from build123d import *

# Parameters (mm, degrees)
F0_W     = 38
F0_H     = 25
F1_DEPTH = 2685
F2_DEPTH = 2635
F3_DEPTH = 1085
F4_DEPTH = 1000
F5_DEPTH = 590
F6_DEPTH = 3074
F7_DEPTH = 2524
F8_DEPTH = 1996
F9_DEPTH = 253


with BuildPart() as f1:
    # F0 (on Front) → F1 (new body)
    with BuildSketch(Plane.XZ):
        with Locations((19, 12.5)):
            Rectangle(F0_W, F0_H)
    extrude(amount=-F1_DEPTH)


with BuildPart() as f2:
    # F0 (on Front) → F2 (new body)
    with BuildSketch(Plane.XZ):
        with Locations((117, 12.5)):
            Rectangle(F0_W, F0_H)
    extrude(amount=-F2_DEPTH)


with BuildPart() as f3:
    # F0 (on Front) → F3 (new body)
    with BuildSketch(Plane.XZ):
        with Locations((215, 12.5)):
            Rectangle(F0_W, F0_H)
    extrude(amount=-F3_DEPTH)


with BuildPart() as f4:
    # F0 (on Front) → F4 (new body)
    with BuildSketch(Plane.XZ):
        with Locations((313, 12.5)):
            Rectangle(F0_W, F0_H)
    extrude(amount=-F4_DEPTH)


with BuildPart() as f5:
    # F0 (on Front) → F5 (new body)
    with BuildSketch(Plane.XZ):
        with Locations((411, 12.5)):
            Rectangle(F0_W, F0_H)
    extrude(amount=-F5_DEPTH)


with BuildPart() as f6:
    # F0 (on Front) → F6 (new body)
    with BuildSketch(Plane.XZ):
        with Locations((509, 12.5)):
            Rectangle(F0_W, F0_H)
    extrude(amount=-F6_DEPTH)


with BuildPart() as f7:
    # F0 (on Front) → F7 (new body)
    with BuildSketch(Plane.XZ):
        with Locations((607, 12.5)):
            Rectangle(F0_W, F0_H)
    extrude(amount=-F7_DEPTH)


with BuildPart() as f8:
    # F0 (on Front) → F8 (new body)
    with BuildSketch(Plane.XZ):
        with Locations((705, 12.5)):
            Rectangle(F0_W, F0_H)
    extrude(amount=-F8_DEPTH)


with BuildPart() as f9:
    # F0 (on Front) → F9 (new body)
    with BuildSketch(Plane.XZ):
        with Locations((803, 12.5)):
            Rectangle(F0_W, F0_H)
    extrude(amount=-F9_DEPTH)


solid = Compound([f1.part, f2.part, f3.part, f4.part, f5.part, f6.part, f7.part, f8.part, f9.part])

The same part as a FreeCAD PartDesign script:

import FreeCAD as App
import Part
import Sketcher

V = App.Vector


def add_polygon(sketch, points):
    """Adds a closed chain of lines whose ends are joined by coincident constraints."""
    first, n = sketch.GeometryCount, len(points)
    for a, b in zip(points, points[1:] + points[:1]):
        sketch.addGeometry(Part.LineSegment(App.Vector(*a, 0), App.Vector(*b, 0)), False)
    for i in range(n):
        sketch.addConstraint(Sketcher.Constraint("Coincident", first + i, 2, first + (i + 1) % n, 1))

doc = App.newDocument("Part")
body = doc.addObject("PartDesign::Body", "Body")

sketch1 = body.newObject("Sketcher::SketchObject", "Sketch")
sketch1.AttachmentSupport = (doc.getObject("XZ_Plane"), [""])
sketch1.MapMode = "FlatFace"
add_polygon(sketch1, [(0, 25), (0, 0), (38, 0), (38, 25)])
sketch1.addConstraint([
    Sketcher.Constraint("Vertical", 0),
    Sketcher.Constraint("Horizontal", 1),
    Sketcher.Constraint("Vertical", 2),
    Sketcher.Constraint("Horizontal", 3),
    Sketcher.Constraint("Coincident", 0, 2, -1, 1),
    Sketcher.Constraint("DistanceX", 1, 1, 1, 2, 38.0),
    Sketcher.Constraint("DistanceY", 0, 2, 0, 1, 25.0),
])
pad1 = body.newObject("PartDesign::Pad", "Pad")
pad1.Profile = sketch1
pad1.Length = 2685
pad1.Reversed = True
body2 = doc.addObject("PartDesign::Body", "Body001")

sketch2 = body2.newObject("Sketcher::SketchObject", "Sketch001")
sketch2.AttachmentSupport = (doc.getObject("XZ_Plane001"), [""])
sketch2.MapMode = "FlatFace"
add_polygon(sketch2, [(98, 25), (98, 0), (136, 0), (136, 25)])
sketch2.addConstraint([
    Sketcher.Constraint("Vertical", 0),
    Sketcher.Constraint("Horizontal", 1),
    Sketcher.Constraint("Vertical", 2),
    Sketcher.Constraint("Horizontal", 3),
    Sketcher.Constraint("PointOnObject", 0, 2, -1),
    Sketcher.Constraint("DistanceX", 1, 1, 1, 2, 38.0),
    Sketcher.Constraint("DistanceY", 0, 2, 0, 1, 25.0),
    Sketcher.Constraint("DistanceX", -1, 1, 0, 2, 98.0),
])
pad2 = body2.newObject("PartDesign::Pad", "Pad001")
pad2.Profile = sketch2
pad2.Length = 2635
pad2.Reversed = True
body3 = doc.addObject("PartDesign::Body", "Body002")

sketch3 = body3.newObject("Sketcher::SketchObject", "Sketch002")
sketch3.AttachmentSupport = (doc.getObject("XZ_Plane002"), [""])
sketch3.MapMode = "FlatFace"
add_polygon(sketch3, [(196, 25), (196, 0), (234, 0), (234, 25)])
sketch3.addConstraint([
    Sketcher.Constraint("Vertical", 0),
    Sketcher.Constraint("Horizontal", 1),
    Sketcher.Constraint("Vertical", 2),
    Sketcher.Constraint("Horizontal", 3),
    Sketcher.Constraint("PointOnObject", 0, 2, -1),
    Sketcher.Constraint("DistanceX", 1, 1, 1, 2, 38.0),
    Sketcher.Constraint("DistanceY", 0, 2, 0, 1, 25.0),
    Sketcher.Constraint("DistanceX", -1, 1, 0, 2, 196.0),
])
pad3 = body3.newObject("PartDesign::Pad", "Pad002")
pad3.Profile = sketch3
pad3.Length = 1085
pad3.Reversed = True
body4 = doc.addObject("PartDesign::Body", "Body003")

sketch4 = body4.newObject("Sketcher::SketchObject", "Sketch003")
sketch4.AttachmentSupport = (doc.getObject("XZ_Plane003"), [""])
sketch4.MapMode = "FlatFace"
add_polygon(sketch4, [(294, 25), (294, 0), (332, 0), (332, 25)])
sketch4.addConstraint([
    Sketcher.Constraint("Vertical", 0),
    Sketcher.Constraint("Horizontal", 1),
    Sketcher.Constraint("Vertical", 2),
    Sketcher.Constraint("Horizontal", 3),
    Sketcher.Constraint("PointOnObject", 0, 2, -1),
    Sketcher.Constraint("DistanceX", 1, 1, 1, 2, 38.0),
    Sketcher.Constraint("DistanceY", 0, 2, 0, 1, 25.0),
    Sketcher.Constraint("DistanceX", -1, 1, 0, 2, 294.0),
])
pad4 = body4.newObject("PartDesign::Pad", "Pad003")
pad4.Profile = sketch4
pad4.Length = 1000
pad4.Reversed = True
body5 = doc.addObject("PartDesign::Body", "Body004")

sketch5 = body5.newObject("Sketcher::SketchObject", "Sketch004")
sketch5.AttachmentSupport = (doc.getObject("XZ_Plane004"), [""])
sketch5.MapMode = "FlatFace"
add_polygon(sketch5, [(392, 25), (392, 0), (430, 0), (430, 25)])
sketch5.addConstraint([
    Sketcher.Constraint("Vertical", 0),
    Sketcher.Constraint("Horizontal", 1),
    Sketcher.Constraint("Vertical", 2),
    Sketcher.Constraint("Horizontal", 3),
    Sketcher.Constraint("PointOnObject", 0, 2, -1),
    Sketcher.Constraint("DistanceX", 1, 1, 1, 2, 38.0),
    Sketcher.Constraint("DistanceY", 0, 2, 0, 1, 25.0),
    Sketcher.Constraint("DistanceX", -1, 1, 0, 2, 392.0),
])
pad5 = body5.newObject("PartDesign::Pad", "Pad004")
pad5.Profile = sketch5
pad5.Length = 590
pad5.Reversed = True
body6 = doc.addObject("PartDesign::Body", "Body005")

sketch6 = body6.newObject("Sketcher::SketchObject", "Sketch005")
sketch6.AttachmentSupport = (doc.getObject("XZ_Plane005"), [""])
sketch6.MapMode = "FlatFace"
add_polygon(sketch6, [(490, 25), (490, 0), (528, 0), (528, 25)])
sketch6.addConstraint([
    Sketcher.Constraint("Vertical", 0),
    Sketcher.Constraint("Horizontal", 1),
    Sketcher.Constraint("Vertical", 2),
    Sketcher.Constraint("Horizontal", 3),
    Sketcher.Constraint("PointOnObject", 0, 2, -1),
    Sketcher.Constraint("DistanceX", 1, 1, 1, 2, 38.0),
    Sketcher.Constraint("DistanceY", 0, 2, 0, 1, 25.0),
    Sketcher.Constraint("DistanceX", -1, 1, 0, 2, 490.0),
])
pad6 = body6.newObject("PartDesign::Pad", "Pad005")
pad6.Profile = sketch6
pad6.Length = 3074
pad6.Reversed = True
body7 = doc.addObject("PartDesign::Body", "Body006")

sketch7 = body7.newObject("Sketcher::SketchObject", "Sketch006")
sketch7.AttachmentSupport = (doc.getObject("XZ_Plane006"), [""])
sketch7.MapMode = "FlatFace"
add_polygon(sketch7, [(588, 25), (588, 0), (626, 0), (626, 25)])
sketch7.addConstraint([
    Sketcher.Constraint("Vertical", 0),
    Sketcher.Constraint("Horizontal", 1),
    Sketcher.Constraint("Vertical", 2),
    Sketcher.Constraint("Horizontal", 3),
    Sketcher.Constraint("PointOnObject", 0, 2, -1),
    Sketcher.Constraint("DistanceX", 1, 1, 1, 2, 38.0),
    Sketcher.Constraint("DistanceY", 0, 2, 0, 1, 25.0),
    Sketcher.Constraint("DistanceX", -1, 1, 0, 2, 588.0),
])
pad7 = body7.newObject("PartDesign::Pad", "Pad006")
pad7.Profile = sketch7
pad7.Length = 2524
pad7.Reversed = True
body8 = doc.addObject("PartDesign::Body", "Body007")

sketch8 = body8.newObject("Sketcher::SketchObject", "Sketch007")
sketch8.AttachmentSupport = (doc.getObject("XZ_Plane007"), [""])
sketch8.MapMode = "FlatFace"
add_polygon(sketch8, [(686, 25), (686, 0), (724, 0), (724, 25)])
sketch8.addConstraint([
    Sketcher.Constraint("Vertical", 0),
    Sketcher.Constraint("Horizontal", 1),
    Sketcher.Constraint("Vertical", 2),
    Sketcher.Constraint("Horizontal", 3),
    Sketcher.Constraint("PointOnObject", 0, 2, -1),
    Sketcher.Constraint("DistanceX", 1, 1, 1, 2, 38.0),
    Sketcher.Constraint("DistanceY", 0, 2, 0, 1, 25.0),
    Sketcher.Constraint("DistanceX", -1, 1, 0, 2, 686.0),
])
pad8 = body8.newObject("PartDesign::Pad", "Pad007")
pad8.Profile = sketch8
pad8.Length = 1996
pad8.Reversed = True
body9 = doc.addObject("PartDesign::Body", "Body008")

sketch9 = body9.newObject("Sketcher::SketchObject", "Sketch008")
sketch9.AttachmentSupport = (doc.getObject("XZ_Plane008"), [""])
sketch9.MapMode = "FlatFace"
add_polygon(sketch9, [(784, 25), (784, 0), (822, 0), (822, 25)])
sketch9.addConstraint([
    Sketcher.Constraint("Vertical", 0),
    Sketcher.Constraint("Horizontal", 1),
    Sketcher.Constraint("Vertical", 2),
    Sketcher.Constraint("Horizontal", 3),
    Sketcher.Constraint("PointOnObject", 0, 2, -1),
    Sketcher.Constraint("DistanceX", 1, 1, 1, 2, 38.0),
    Sketcher.Constraint("DistanceY", 0, 2, 0, 1, 25.0),
    Sketcher.Constraint("DistanceX", -1, 1, 0, 2, 784.0),
])
pad9 = body9.newObject("PartDesign::Pad", "Pad008")
pad9.Profile = sketch9
pad9.Length = 253
pad9.Reversed = True

doc.recompute()
